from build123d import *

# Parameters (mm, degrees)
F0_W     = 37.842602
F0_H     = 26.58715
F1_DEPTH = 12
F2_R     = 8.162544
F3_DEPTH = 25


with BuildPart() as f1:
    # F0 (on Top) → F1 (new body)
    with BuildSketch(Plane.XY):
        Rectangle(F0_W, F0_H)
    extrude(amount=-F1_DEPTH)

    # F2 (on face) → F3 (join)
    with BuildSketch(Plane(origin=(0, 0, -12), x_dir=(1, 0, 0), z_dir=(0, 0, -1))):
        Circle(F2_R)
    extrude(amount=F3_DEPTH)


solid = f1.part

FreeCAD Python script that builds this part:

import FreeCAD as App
import Part
import Sketcher
Q = App.Units.Quantity

doc = App.newDocument("Part")
body = doc.addObject("PartDesign::Body", "Body")

# Sketch on XY plane
sketch1 = doc.addObject("Sketcher::SketchObject", "Sketch")
body.addObject(sketch1)
sketch1.AttachmentSupport = (doc.XY_Plane, [""])
sketch1.MapMode = "FlatFace"
sketch1.addGeometry(Part.LineSegment(App.Vector(-19, 13, 0), App.Vector(-19, -13, 0)), False)
sketch1.addGeometry(Part.LineSegment(App.Vector(-19, -13, 0), App.Vector(19, -13, 0)), False)
sketch1.addGeometry(Part.LineSegment(App.Vector(19, -13, 0), App.Vector(19, 13, 0)), False)
sketch1.addGeometry(Part.LineSegment(App.Vector(19, 13, 0), App.Vector(-19, 13, 0)), False)
sketch1.addConstraint(Sketcher.Constraint("Coincident", 0, 2, 1, 1))
sketch1.addConstraint(Sketcher.Constraint("Coincident", 1, 2, 2, 1))
sketch1.addConstraint(Sketcher.Constraint("Coincident", 2, 2, 3, 1))
sketch1.addConstraint(Sketcher.Constraint("Coincident", 3, 2, 0, 1))
sketch1.addConstraint(Sketcher.Constraint("Vertical", 0))
sketch1.addConstraint(Sketcher.Constraint("Horizontal", 1))
sketch1.addConstraint(Sketcher.Constraint("Vertical", 2))
sketch1.addConstraint(Sketcher.Constraint("Horizontal", 3))
sketch1.addConstraint(Sketcher.Constraint("Symmetric", 0, 2, 2, 2, -1, 1))
sketch1.addConstraint(Sketcher.Constraint("DistanceY", 0, 2, 0, 1, Q("26.58715 mm")))
sketch1.addConstraint(Sketcher.Constraint("DistanceX", 0, 2, -1, 1, Q("18.921301 mm")))
pad1 = doc.addObject("PartDesign::Pad", "Pad")
body.addObject(pad1)
pad1.Profile = sketch1
pad1.Length = 12
pad1.Reversed = True

# Sketch on XY plane
sketch2 = doc.addObject("Sketcher::SketchObject", "Sketch001")
body.addObject(sketch2)
sketch2.AttachmentSupport = (doc.XY_Plane, [""])
sketch2.MapMode = "FlatFace"
sketch2.AttachmentOffset = App.Placement(App.Vector(0, 0, -12), App.Rotation())
sketch2.addGeometry(Part.Circle(App.Vector(0, 0, 0), App.Vector(0, 0, 1), 8), False)
sketch2.addConstraint(Sketcher.Constraint("Coincident", 0, 3, -1, 1))
sketch2.addConstraint(Sketcher.Constraint("Diameter", 0, Q("16.325088 mm")))
pad2 = doc.addObject("PartDesign::Pad", "Pad001")
body.addObject(pad2)
pad2.Profile = sketch2
pad2.Length = 25
pad2.Reversed = True

doc.recompute()
